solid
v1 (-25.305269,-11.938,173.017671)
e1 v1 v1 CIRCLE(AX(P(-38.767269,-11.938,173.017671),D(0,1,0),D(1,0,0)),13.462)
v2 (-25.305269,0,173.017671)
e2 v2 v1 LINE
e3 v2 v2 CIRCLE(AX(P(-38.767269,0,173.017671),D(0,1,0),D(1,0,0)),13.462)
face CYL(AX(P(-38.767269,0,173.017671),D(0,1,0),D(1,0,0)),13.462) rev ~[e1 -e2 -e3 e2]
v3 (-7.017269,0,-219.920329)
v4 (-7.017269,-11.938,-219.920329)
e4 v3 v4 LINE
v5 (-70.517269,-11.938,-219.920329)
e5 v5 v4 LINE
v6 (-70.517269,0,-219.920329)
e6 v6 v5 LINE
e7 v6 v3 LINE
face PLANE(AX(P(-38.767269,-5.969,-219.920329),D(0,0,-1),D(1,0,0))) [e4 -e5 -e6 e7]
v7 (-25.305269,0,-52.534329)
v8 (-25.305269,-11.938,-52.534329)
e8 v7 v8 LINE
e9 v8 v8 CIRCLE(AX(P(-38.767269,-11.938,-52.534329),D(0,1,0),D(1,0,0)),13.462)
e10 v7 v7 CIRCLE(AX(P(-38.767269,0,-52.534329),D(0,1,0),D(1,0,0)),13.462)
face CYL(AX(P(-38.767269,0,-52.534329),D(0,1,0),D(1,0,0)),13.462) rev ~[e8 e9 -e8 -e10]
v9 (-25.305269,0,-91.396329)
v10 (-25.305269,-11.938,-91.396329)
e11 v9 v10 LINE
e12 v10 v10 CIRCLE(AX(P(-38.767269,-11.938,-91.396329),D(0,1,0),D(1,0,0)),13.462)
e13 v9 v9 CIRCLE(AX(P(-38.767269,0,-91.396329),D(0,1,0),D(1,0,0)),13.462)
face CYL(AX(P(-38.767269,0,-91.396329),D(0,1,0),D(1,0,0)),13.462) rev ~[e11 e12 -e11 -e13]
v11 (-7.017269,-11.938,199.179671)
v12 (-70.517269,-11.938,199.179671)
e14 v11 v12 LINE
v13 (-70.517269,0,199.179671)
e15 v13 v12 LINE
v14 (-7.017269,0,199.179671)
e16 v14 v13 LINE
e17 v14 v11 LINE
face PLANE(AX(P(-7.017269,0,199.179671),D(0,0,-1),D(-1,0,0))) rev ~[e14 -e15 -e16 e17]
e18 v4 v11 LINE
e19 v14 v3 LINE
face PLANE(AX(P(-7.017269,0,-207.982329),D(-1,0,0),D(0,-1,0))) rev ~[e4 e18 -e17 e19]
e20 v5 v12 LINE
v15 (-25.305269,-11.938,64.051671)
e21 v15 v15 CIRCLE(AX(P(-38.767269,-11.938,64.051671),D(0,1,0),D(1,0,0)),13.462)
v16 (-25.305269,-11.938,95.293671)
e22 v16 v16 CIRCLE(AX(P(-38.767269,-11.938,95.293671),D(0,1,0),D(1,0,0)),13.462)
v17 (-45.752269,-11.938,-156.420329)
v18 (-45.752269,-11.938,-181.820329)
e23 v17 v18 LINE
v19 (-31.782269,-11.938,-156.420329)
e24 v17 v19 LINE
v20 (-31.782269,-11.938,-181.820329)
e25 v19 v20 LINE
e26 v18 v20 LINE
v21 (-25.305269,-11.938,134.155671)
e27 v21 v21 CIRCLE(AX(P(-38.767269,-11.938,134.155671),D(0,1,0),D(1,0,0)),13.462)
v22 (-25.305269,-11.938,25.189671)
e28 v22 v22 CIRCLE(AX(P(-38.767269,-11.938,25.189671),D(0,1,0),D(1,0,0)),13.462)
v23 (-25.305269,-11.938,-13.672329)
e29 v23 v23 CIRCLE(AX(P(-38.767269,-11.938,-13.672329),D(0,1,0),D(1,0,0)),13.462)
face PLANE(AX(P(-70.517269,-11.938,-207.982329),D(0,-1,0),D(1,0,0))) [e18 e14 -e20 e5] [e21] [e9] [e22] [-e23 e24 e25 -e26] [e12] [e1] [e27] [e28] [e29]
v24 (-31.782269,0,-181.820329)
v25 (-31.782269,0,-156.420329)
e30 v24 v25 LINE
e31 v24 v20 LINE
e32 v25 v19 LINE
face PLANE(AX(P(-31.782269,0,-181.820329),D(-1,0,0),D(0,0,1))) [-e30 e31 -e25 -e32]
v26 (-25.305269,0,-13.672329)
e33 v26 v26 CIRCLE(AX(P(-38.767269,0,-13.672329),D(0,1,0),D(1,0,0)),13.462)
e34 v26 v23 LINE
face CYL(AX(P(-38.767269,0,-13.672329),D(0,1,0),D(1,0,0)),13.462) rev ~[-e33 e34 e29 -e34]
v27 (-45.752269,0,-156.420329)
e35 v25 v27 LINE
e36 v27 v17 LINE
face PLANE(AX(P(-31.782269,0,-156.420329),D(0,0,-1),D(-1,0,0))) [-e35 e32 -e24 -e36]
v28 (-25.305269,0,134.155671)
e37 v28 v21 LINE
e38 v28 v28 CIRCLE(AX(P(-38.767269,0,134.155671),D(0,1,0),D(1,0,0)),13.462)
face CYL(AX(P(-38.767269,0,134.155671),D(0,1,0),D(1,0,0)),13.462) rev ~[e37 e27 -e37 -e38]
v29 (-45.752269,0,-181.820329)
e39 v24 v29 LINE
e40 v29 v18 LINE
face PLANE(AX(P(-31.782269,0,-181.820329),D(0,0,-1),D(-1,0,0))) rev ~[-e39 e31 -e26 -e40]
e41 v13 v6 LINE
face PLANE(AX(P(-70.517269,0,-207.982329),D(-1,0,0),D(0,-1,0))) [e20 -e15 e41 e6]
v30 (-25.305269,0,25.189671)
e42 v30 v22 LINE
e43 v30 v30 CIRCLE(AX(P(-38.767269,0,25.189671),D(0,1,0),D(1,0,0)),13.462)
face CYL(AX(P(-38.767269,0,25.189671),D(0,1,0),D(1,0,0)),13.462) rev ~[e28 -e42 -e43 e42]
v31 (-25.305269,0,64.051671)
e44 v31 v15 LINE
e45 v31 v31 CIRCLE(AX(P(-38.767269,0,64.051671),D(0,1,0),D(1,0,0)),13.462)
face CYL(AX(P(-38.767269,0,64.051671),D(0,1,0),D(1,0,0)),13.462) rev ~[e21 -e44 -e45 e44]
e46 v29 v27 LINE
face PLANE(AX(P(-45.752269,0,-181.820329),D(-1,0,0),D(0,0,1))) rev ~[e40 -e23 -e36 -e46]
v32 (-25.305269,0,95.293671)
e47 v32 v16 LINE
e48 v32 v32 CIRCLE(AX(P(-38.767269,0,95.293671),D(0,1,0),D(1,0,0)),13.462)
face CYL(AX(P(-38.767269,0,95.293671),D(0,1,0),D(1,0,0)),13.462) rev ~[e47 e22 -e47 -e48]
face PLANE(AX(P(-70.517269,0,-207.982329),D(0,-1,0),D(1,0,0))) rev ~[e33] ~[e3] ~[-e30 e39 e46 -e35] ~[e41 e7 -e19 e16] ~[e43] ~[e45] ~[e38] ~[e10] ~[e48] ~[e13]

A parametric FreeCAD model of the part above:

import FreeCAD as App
import Part
import Sketcher
from FreeCAD import Vector
Q = App.Units.Quantity

doc = App.newDocument("Part")
body = doc.addObject("PartDesign::Body", "Body")

sketch1 = doc.addObject("Sketcher::SketchObject", "Sketch")
body.addObject(sketch1)
sketch1.AttachmentSupport = (doc.XZ_Plane, [""])
sketch1.MapMode = "FlatFace"
sketch1.addGeometry([
    Part.LineSegment(Vector(-71, 199, 0), Vector(-71, -208, 0)),
    Part.LineSegment(Vector(-71, -208, 0), Vector(-7, -208, 0)),
    Part.LineSegment(Vector(-7, -208, 0), Vector(-7, 199, 0)),
    Part.LineSegment(Vector(-7, 199, 0), Vector(-71, 199, 0)),
    Part.Circle(Vector(-39, -91, 0), Vector(0, 0, 1), 13),
    Part.Circle(Vector(-39, -53, 0), Vector(0, 0, 1), 13),
    Part.Circle(Vector(-39, -14, 0), Vector(0, 0, 1), 13),
    Part.Circle(Vector(-39, 25, 0), Vector(0, 0, 1), 13),
    Part.Circle(Vector(-39, 64, 0), Vector(0, 0, 1), 13),
    Part.Circle(Vector(-39, 95, 0), Vector(0, 0, 1), 13),
    Part.Circle(Vector(-39, 134, 0), Vector(0, 0, 1), 13),
    Part.Circle(Vector(-39, 173, 0), Vector(0, 0, 1), 13),
], False)
sketch1.addConstraint([
    Sketcher.Constraint("Coincident", 0, 2, 1, 1),
    Sketcher.Constraint("Coincident", 1, 2, 2, 1),
    Sketcher.Constraint("Coincident", 2, 2, 3, 1),
    Sketcher.Constraint("Coincident", 3, 2, 0, 1),
    Sketcher.Constraint("Vertical", 0),
    Sketcher.Constraint("Horizontal", 1),
    Sketcher.Constraint("Vertical", 2),
    Sketcher.Constraint("Horizontal", 3),
    Sketcher.Constraint("Equal", 4, 5),
    Sketcher.Constraint("Equal", 5, 6),
    Sketcher.Constraint("Equal", 6, 7),
    Sketcher.Constraint("Equal", 7, 8),
    Sketcher.Constraint("Equal", 8, 9),
    Sketcher.Constraint("Equal", 9, 10),
    Sketcher.Constraint("Equal", 10, 11),
    Sketcher.Constraint("Vertical", 4, 3, 5, 3),
    Sketcher.Constraint("Vertical", 5, 3, 6, 3),
    Sketcher.Constraint("Vertical", 6, 3, 7, 3),
    Sketcher.Constraint("Vertical", 7, 3, 8, 3),
    Sketcher.Constraint("Vertical", 8, 3, 9, 3),
    Sketcher.Constraint("Vertical", 9, 3, 10, 3),
    Sketcher.Constraint("Vertical", 10, 3, 11, 3),
    Sketcher.Constraint("Diameter", 4, Q("1.06 in")),
    Sketcher.Constraint("DistanceX", 1, 1, 1, 2, Q("2.5 in")),
    Sketcher.Constraint("DistanceY", 0, 2, 0, 1, Q("16.03 in")),
    Sketcher.Constraint("DistanceY", 4, 3, 5, 3, Q("1.53 in")),
    Sketcher.Constraint("DistanceY", 5, 3, 6, 3, Q("1.53 in")),
    Sketcher.Constraint("DistanceY", 6, 3, 7, 3, Q("1.53 in")),
    Sketcher.Constraint("DistanceY", 7, 3, 8, 3, Q("1.53 in")),
    Sketcher.Constraint("DistanceY", 8, 3, 9, 3, Q("1.23 in")),
    Sketcher.Constraint("DistanceY", 9, 3, 10, 3, Q("1.53 in")),
    Sketcher.Constraint("DistanceY", 10, 3, 11, 3, Q("1.53 in")),
    Sketcher.Constraint("DistanceX", 0, 2, 4, 3, Q("1.25 in")),
    Sketcher.Constraint("DistanceY", 0, 2, 4, 3, Q("4.59 in")),
    Sketcher.Constraint("DistanceX", 4, 3, -1, 1, Q("38.767269 mm")),
    Sketcher.Constraint("DistanceY", 4, 3, -1, 1, Q("91.396329 mm")),
])
pad1 = doc.addObject("PartDesign::Pad", "Pad")
body.addObject(pad1)
pad1.Profile = sketch1
pad1.Length = Q("0.47 in")

sketch2 = doc.addObject("Sketcher::SketchObject", "Sketch001")
body.addObject(sketch2)
sketch2.AttachmentSupport = (doc.XZ_Plane, [""])
sketch2.MapMode = "FlatFace"
sketch2.addGeometry([
    Part.LineSegment(Vector(-32, -156, 0), Vector(-32, -182, 0)),
    Part.LineSegment(Vector(-32, -182, 0), Vector(-46, -182, 0)),
    Part.LineSegment(Vector(-46, -182, 0), Vector(-46, -156, 0)),
    Part.LineSegment(Vector(-46, -156, 0), Vector(-32, -156, 0)),
], False)
sketch2.addConstraint([
    Sketcher.Constraint("Coincident", 0, 2, 1, 1),
    Sketcher.Constraint("Coincident", 1, 2, 2, 1),
    Sketcher.Constraint("Coincident", 2, 2, 3, 1),
    Sketcher.Constraint("Coincident", 3, 2, 0, 1),
    Sketcher.Constraint("Vertical", 0),
    Sketcher.Constraint("Horizontal", 1),
    Sketcher.Constraint("Vertical", 2),
    Sketcher.Constraint("Horizontal", 3),
    Sketcher.Constraint("DistanceY", 0, 2, 0, 1, Q("1 in")),
    Sketcher.Constraint("DistanceX", 1, 2, 1, 1, Q("0.55 in")),
    Sketcher.Constraint("DistanceX", 0, 2, -1, 1, Q("31.782269 mm")),
    Sketcher.Constraint("DistanceY", 0, 2, -1, 1, Q("181.820329 mm")),
])
pocket1 = doc.addObject("PartDesign::Pocket", "Pocket")
body.addObject(pocket1)
pocket1.Profile = sketch2
pocket1.Length = Q("1 in")
pocket1.Reversed = True

sketch3 = doc.addObject("Sketcher::SketchObject", "Sketch002")
body.addObject(sketch3)
sketch3.AttachmentSupport = (doc.XY_Plane, [""])
sketch3.MapMode = "FlatFace"
sketch3.AttachmentOffset = App.Placement(Vector(0, 0, -207.982329), App.Rotation())
sketch3.addGeometry([
    Part.LineSegment(Vector(-71, -12, 0), Vector(-71, 0, 0)),
    Part.LineSegment(Vector(-71, 0, 0), Vector(-7, 0, 0)),
    Part.LineSegment(Vector(-7, 0, 0), Vector(-7, -12, 0)),
    Part.LineSegment(Vector(-7, -12, 0), Vector(-71, -12, 0)),
], False)
sketch3.addConstraint([
    Sketcher.Constraint("Coincident", 0, 2, 1, 1),
    Sketcher.Constraint("Coincident", 1, 2, 2, 1),
    Sketcher.Constraint("Coincident", 2, 2, 3, 1),
    Sketcher.Constraint("Coincident", 3, 2, 0, 1),
    Sketcher.Constraint("Vertical", 0),
    Sketcher.Constraint("Horizontal", 1),
    Sketcher.Constraint("Vertical", 2),
    Sketcher.Constraint("Horizontal", 3),
    Sketcher.Constraint("PointOnObject", 0, 2, -1),
    Sketcher.Constraint("DistanceX", 1, 1, 1, 2, Q("2.5 in")),
    Sketcher.Constraint("DistanceY", 0, 1, 0, 2, Q("0.47 in")),
    Sketcher.Constraint("DistanceX", 0, 2, -1, 1, Q("70.517269 mm")),
])
pad2 = doc.addObject("PartDesign::Pad", "Pad001")
body.addObject(pad2)
pad2.Profile = sketch3
pad2.Length = Q("0.47 in")
pad2.Reversed = True

doc.recompute()
